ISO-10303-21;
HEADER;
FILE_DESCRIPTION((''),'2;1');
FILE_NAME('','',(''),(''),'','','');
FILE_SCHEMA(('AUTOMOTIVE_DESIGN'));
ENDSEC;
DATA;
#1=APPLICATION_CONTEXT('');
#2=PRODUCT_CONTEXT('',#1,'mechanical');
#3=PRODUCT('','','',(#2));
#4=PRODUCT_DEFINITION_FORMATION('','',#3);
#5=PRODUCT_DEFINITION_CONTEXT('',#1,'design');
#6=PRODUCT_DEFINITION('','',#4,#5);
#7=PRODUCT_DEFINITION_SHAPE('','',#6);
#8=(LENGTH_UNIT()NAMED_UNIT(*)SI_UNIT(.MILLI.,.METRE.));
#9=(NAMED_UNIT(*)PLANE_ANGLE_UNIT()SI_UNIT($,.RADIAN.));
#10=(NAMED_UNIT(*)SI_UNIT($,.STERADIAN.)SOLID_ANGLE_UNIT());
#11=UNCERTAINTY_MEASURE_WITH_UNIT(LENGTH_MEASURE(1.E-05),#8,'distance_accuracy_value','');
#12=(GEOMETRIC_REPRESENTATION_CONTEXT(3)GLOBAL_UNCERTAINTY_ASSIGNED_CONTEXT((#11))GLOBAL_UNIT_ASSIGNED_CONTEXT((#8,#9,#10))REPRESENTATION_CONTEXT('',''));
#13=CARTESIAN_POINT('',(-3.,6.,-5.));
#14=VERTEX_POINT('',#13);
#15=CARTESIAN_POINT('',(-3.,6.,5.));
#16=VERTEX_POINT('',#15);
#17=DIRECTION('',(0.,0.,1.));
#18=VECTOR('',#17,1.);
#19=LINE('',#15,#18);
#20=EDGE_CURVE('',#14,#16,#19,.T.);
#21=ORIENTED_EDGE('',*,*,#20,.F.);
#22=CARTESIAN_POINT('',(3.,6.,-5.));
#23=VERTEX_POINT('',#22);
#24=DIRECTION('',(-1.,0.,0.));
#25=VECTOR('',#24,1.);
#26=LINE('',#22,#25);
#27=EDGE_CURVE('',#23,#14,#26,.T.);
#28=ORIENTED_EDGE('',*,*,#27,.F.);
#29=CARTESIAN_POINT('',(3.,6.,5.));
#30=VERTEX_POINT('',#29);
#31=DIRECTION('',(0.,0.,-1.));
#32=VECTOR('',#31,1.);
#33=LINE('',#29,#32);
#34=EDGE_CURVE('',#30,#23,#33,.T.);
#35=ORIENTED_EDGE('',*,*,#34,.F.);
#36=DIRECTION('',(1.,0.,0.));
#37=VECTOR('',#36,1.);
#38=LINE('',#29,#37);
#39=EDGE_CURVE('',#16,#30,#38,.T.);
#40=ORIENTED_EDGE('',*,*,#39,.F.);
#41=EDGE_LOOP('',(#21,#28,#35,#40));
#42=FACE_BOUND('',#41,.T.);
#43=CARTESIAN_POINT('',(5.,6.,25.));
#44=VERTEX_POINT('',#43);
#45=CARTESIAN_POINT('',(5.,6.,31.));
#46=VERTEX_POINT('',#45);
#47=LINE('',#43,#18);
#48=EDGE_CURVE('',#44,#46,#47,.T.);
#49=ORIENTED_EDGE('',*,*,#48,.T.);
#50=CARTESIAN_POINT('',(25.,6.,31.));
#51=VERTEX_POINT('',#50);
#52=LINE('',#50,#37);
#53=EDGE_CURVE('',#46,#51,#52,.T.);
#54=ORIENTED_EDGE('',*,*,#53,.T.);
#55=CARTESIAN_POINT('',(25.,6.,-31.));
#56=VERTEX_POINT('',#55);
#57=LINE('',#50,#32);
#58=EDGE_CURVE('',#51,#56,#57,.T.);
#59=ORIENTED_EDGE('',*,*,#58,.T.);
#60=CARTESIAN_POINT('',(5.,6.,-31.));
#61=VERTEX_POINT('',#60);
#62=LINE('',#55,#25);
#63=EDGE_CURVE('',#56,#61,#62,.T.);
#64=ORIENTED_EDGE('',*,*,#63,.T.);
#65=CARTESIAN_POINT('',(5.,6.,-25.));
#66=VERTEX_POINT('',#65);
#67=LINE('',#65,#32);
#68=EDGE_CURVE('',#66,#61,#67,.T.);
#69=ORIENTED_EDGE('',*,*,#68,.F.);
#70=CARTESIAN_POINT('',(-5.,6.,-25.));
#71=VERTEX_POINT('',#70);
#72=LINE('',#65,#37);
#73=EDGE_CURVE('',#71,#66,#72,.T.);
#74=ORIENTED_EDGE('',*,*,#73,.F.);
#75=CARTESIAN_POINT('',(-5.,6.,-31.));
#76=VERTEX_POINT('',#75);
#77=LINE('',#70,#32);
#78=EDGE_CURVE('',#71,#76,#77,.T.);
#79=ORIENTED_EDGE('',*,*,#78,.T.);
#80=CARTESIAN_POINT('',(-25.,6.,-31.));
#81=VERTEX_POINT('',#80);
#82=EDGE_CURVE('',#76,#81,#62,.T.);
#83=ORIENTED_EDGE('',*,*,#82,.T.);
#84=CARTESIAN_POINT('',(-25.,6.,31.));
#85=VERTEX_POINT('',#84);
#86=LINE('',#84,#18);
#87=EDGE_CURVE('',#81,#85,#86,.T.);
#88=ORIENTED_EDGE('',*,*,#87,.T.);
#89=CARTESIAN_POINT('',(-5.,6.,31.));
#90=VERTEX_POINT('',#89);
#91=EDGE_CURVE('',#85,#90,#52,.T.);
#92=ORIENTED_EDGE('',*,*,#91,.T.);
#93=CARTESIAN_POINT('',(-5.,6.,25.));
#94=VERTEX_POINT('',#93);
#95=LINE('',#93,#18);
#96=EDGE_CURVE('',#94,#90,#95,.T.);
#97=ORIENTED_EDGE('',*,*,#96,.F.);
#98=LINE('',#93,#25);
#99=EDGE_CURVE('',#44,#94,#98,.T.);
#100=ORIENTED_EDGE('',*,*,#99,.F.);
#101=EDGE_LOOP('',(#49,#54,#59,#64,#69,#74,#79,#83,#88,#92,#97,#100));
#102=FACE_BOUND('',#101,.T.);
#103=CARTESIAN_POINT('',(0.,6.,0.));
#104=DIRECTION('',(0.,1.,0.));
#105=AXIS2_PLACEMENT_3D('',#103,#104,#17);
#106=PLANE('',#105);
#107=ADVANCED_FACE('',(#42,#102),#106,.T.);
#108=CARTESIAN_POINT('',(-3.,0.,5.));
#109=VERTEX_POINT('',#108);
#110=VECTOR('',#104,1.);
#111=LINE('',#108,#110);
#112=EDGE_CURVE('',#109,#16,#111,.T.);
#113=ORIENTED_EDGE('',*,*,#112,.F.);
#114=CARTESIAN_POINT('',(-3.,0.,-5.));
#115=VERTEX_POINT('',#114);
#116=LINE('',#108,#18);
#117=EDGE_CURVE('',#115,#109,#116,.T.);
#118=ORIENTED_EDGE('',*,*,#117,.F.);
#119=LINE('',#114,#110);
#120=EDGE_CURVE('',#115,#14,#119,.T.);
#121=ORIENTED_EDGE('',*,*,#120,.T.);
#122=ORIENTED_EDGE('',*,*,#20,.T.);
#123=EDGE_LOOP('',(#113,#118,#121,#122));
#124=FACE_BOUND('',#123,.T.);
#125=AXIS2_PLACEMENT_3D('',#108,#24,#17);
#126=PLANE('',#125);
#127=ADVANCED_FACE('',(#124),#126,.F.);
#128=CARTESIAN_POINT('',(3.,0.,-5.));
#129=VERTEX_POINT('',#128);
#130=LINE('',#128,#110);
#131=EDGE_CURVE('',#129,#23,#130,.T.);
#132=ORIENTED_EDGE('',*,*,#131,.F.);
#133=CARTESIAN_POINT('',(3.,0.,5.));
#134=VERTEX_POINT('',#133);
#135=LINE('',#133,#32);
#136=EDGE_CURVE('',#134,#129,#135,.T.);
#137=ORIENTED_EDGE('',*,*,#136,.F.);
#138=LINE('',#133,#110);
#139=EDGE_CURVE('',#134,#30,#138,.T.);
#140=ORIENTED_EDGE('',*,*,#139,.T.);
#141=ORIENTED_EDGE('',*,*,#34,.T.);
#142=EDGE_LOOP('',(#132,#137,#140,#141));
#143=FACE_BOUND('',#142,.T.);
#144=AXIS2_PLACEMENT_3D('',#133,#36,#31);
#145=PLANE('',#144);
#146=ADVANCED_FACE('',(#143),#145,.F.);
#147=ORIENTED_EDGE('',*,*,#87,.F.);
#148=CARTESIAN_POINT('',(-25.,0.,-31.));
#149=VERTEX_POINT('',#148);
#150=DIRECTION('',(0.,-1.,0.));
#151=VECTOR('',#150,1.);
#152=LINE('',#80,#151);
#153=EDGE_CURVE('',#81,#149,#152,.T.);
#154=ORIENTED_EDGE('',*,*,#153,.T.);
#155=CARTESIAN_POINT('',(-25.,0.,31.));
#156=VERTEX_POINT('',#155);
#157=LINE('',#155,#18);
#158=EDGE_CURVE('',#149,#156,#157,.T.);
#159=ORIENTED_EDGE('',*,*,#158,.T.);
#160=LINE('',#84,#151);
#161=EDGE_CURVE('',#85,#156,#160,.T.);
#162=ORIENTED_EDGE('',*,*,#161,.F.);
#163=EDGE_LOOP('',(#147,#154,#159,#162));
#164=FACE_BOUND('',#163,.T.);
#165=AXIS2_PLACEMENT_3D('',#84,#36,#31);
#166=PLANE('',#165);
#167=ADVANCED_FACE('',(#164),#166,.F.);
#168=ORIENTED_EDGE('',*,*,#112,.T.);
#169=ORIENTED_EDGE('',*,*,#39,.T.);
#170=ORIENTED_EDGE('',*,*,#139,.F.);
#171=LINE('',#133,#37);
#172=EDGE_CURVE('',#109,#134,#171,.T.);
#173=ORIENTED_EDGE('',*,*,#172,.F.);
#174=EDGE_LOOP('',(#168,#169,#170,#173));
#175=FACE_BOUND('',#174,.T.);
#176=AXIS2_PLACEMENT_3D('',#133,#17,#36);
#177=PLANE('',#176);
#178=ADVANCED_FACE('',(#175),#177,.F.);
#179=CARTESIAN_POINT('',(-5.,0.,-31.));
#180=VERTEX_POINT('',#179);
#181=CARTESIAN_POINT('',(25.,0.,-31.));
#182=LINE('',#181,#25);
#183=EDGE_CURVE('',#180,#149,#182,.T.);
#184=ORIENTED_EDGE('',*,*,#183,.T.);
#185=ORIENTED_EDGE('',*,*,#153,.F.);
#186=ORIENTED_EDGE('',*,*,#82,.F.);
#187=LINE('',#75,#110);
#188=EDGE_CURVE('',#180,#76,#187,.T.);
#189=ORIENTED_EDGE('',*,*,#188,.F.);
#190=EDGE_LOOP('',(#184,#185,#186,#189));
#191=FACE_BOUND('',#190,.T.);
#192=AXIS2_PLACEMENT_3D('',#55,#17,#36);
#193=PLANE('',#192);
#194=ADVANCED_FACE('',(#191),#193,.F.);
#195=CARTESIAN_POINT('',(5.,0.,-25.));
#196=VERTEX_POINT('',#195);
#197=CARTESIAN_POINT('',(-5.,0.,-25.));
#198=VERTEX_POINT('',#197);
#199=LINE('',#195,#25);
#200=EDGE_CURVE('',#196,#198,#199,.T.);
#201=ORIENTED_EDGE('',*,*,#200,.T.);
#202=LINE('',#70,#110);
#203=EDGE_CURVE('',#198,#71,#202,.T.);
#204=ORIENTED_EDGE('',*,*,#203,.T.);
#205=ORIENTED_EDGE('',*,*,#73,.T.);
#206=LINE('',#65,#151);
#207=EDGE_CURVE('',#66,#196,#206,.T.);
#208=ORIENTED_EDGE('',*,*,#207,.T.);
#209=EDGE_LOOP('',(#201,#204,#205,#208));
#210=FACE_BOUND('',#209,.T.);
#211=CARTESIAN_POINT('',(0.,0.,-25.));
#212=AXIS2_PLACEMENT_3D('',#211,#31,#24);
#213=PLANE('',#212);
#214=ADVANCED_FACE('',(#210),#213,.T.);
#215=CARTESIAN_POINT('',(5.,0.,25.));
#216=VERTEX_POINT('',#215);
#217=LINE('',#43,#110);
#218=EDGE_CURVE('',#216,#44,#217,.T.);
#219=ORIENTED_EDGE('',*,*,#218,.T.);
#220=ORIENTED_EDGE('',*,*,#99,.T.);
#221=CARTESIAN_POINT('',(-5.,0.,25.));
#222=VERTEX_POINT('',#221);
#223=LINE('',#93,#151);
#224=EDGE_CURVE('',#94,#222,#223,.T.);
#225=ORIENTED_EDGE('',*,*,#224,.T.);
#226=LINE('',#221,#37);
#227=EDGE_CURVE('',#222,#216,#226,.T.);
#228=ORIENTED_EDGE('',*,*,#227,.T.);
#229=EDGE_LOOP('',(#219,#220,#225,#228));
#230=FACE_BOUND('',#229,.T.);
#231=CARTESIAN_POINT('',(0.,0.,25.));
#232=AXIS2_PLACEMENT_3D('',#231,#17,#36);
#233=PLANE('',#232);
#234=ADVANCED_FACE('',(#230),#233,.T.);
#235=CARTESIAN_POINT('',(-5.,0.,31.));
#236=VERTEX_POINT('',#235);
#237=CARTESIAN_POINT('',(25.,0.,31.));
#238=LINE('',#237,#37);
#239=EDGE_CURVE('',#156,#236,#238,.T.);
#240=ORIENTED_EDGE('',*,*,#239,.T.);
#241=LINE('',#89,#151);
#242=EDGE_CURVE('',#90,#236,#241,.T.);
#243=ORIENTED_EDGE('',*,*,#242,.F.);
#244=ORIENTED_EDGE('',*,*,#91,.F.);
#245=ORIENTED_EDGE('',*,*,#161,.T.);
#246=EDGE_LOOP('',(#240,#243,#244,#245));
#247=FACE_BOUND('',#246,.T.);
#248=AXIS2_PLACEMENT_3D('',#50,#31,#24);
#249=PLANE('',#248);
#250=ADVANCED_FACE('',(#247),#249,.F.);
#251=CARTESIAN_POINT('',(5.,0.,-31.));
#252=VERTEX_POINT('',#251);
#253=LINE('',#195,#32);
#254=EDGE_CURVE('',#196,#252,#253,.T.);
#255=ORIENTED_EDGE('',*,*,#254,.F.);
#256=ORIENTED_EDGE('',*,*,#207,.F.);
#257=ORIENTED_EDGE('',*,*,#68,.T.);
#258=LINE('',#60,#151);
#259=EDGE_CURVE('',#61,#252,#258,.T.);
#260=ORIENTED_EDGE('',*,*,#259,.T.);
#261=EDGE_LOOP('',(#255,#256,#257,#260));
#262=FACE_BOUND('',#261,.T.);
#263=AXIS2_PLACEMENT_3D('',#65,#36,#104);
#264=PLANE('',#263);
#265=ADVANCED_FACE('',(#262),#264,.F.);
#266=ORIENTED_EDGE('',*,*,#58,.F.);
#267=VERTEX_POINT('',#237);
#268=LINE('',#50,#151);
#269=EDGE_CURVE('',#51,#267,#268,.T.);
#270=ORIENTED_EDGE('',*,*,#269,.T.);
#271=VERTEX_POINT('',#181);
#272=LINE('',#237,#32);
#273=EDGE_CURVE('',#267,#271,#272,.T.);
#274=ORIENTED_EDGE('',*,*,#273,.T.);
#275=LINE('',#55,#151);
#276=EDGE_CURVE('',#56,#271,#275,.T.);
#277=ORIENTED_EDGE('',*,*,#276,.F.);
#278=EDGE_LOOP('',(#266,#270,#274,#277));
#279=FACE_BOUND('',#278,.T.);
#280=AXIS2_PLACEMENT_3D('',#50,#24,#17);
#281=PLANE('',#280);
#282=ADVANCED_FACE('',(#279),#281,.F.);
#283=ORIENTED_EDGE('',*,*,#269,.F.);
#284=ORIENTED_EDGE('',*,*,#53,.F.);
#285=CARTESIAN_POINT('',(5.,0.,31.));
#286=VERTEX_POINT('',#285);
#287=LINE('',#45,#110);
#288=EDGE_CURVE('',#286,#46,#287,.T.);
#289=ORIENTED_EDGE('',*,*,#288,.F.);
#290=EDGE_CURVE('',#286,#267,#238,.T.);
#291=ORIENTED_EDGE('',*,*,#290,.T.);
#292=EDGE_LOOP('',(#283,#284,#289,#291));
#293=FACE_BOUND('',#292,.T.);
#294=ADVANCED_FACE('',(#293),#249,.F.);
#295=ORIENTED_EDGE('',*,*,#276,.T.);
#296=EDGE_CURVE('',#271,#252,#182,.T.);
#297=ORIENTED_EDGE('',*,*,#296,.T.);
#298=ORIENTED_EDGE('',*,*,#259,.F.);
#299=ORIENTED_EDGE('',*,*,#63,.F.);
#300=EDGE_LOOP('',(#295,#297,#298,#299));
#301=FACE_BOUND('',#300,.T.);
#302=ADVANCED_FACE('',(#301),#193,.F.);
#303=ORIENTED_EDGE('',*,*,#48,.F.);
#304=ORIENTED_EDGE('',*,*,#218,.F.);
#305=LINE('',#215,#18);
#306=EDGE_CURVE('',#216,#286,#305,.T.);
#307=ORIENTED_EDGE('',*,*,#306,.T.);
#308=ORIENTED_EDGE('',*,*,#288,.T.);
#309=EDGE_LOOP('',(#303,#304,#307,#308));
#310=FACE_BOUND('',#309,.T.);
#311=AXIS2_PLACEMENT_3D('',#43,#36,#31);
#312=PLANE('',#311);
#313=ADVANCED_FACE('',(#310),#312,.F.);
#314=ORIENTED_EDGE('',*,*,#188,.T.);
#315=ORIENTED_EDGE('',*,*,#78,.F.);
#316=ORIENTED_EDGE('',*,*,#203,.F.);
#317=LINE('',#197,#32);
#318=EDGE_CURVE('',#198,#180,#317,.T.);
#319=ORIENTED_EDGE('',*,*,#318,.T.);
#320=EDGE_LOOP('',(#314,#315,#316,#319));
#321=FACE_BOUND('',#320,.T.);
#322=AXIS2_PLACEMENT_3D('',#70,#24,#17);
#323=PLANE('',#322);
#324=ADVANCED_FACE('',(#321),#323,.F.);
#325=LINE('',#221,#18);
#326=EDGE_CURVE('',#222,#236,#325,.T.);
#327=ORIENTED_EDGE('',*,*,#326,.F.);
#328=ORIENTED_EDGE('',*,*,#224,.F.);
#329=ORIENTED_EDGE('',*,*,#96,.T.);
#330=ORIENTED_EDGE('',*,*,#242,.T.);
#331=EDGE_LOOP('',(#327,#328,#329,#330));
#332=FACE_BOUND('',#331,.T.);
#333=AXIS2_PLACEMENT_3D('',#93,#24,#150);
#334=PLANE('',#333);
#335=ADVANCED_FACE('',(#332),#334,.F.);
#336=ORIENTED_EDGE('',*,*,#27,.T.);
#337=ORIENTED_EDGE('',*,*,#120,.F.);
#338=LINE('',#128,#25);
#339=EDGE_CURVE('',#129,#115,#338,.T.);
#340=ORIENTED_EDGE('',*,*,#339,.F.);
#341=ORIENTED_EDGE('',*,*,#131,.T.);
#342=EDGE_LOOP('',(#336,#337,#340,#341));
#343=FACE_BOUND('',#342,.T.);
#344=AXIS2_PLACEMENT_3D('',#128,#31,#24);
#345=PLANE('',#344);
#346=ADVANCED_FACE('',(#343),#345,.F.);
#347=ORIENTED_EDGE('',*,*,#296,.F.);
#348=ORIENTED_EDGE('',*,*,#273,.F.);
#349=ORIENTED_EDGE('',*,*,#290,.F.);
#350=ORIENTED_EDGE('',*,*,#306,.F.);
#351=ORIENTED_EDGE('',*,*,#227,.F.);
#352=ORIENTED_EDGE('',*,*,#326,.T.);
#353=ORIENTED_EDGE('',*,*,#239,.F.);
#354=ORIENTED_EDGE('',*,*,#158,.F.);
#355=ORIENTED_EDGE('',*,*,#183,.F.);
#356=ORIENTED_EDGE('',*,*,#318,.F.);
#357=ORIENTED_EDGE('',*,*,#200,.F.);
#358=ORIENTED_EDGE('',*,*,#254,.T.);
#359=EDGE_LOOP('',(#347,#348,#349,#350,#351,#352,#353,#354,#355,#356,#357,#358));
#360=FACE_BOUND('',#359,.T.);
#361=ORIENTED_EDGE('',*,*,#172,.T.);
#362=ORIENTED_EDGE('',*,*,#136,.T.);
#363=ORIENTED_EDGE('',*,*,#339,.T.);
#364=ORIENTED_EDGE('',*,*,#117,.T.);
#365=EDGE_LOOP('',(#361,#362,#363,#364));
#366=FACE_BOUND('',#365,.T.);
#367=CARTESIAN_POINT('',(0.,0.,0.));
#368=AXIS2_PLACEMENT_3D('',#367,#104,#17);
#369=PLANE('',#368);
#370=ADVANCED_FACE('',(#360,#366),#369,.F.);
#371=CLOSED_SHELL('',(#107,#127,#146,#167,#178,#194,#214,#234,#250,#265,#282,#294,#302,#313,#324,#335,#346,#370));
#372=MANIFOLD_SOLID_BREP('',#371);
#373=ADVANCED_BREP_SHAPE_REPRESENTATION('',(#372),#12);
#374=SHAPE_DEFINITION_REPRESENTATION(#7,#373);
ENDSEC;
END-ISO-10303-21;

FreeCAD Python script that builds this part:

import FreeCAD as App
import Part
import Sketcher

V = App.Vector
Q = App.Units.Quantity


def add_polygon(sketch, points):
    """Adds a closed chain of lines whose ends are joined by coincident constraints."""
    first, n = sketch.GeometryCount, len(points)
    for a, b in zip(points, points[1:] + points[:1]):
        sketch.addGeometry(Part.LineSegment(App.Vector(*a, 0), App.Vector(*b, 0)), False)
    for i in range(n):
        sketch.addConstraint(Sketcher.Constraint("Coincident", first + i, 2, first + (i + 1) % n, 1))

doc = App.newDocument("Part")
body = doc.addObject("PartDesign::Body", "Body")

sketch1 = body.newObject("Sketcher::SketchObject", "Sketch")
sketch1.AttachmentSupport = (doc.getObject("XZ_Plane"), [""])
sketch1.MapMode = "FlatFace"
add_polygon(sketch1, [(-25, -31), (-25, 31), (25, 31), (25, -31)])
sketch1.addConstraint([
    Sketcher.Constraint("Vertical", 0),
    Sketcher.Constraint("Horizontal", 1),
    Sketcher.Constraint("Vertical", 2),
    Sketcher.Constraint("Horizontal", 3),
    Sketcher.Constraint("Symmetric", 0, 2, 2, 2, -1, 1),
    Sketcher.Constraint("DistanceX", 1, 1, 1, 2, Q("50 mm")),
    Sketcher.Constraint("DistanceY", 0, 1, 0, 2, Q("62 mm")),
])
pad1 = body.newObject("PartDesign::Pad", "Pad")
pad1.Profile = sketch1
pad1.Length = 6
pad1.Reversed = True

sketch2 = body.newObject("Sketcher::SketchObject", "Sketch001")
sketch2.AttachmentSupport = (doc.getObject("XY_Plane"), [""])
sketch2.MapMode = "FlatFace"
sketch2.AttachmentOffset = App.Placement(V(0, 0, 31), App.Rotation())
add_polygon(sketch2, [(-5, 6), (-5, 0), (5, 0), (5, 6)])
sketch2.addConstraint([
    Sketcher.Constraint("Vertical", 0),
    Sketcher.Constraint("Horizontal", 1),
    Sketcher.Constraint("Vertical", 2),
    Sketcher.Constraint("Horizontal", 3),
    Sketcher.Constraint("Symmetric", 0, 2, 1, 2, -1, 1),
    Sketcher.Constraint("DistanceX", 1, 1, 1, 2, Q("10 mm")),
    Sketcher.Constraint("DistanceY", 0, 2, 0, 1, Q("6 mm")),
])
pocket1 = body.newObject("PartDesign::Pocket", "Pocket")
pocket1.Profile = sketch2
pocket1.Length = 6

sketch3 = body.newObject("Sketcher::SketchObject", "Sketch002")
sketch3.AttachmentSupport = (doc.getObject("XY_Plane"), [""])
sketch3.MapMode = "FlatFace"
sketch3.AttachmentOffset = App.Placement(V(0, 0, -31), App.Rotation())
add_polygon(sketch3, [(5, 6), (5, 0), (-5, 0), (-5, 6)])
sketch3.addConstraint([
    Sketcher.Constraint("Vertical", 0),
    Sketcher.Constraint("Horizontal", 1),
    Sketcher.Constraint("Vertical", 2),
    Sketcher.Constraint("Horizontal", 3),
    Sketcher.Constraint("Symmetric", 0, 2, 1, 2, -1, 1),
    Sketcher.Constraint("DistanceX", 1, 2, 1, 1, Q("10 mm")),
    Sketcher.Constraint("DistanceY", 0, 2, 0, 1, Q("6 mm")),
])
pocket2 = body.newObject("PartDesign::Pocket", "Pocket001")
pocket2.Profile = sketch3
pocket2.Length = 6
pocket2.Reversed = True

sketch4 = body.newObject("Sketcher::SketchObject", "Sketch003")
sketch4.AttachmentSupport = (doc.getObject("XZ_Plane"), [""])
sketch4.MapMode = "FlatFace"
sketch4.AttachmentOffset = App.Placement(V(0, 0, -6), App.Rotation())
add_polygon(sketch4, [(-3, -5), (-3, 5), (3, 5), (3, -5)])
sketch4.addConstraint([
    Sketcher.Constraint("Vertical", 0),
    Sketcher.Constraint("Horizontal", 1),
    Sketcher.Constraint("Vertical", 2),
    Sketcher.Constraint("Horizontal", 3),
    Sketcher.Constraint("Symmetric", 0, 2, 2, 2, -1, 1),
    Sketcher.Constraint("DistanceX", 1, 1, 1, 2, Q("6 mm")),
    Sketcher.Constraint("DistanceY", 0, 1, 0, 2, Q("10 mm")),
])
pocket3 = body.newObject("PartDesign::Pocket", "Pocket002")
pocket3.Profile = sketch4
pocket3.Length = 6
pocket3.Reversed = True

doc.recompute()
